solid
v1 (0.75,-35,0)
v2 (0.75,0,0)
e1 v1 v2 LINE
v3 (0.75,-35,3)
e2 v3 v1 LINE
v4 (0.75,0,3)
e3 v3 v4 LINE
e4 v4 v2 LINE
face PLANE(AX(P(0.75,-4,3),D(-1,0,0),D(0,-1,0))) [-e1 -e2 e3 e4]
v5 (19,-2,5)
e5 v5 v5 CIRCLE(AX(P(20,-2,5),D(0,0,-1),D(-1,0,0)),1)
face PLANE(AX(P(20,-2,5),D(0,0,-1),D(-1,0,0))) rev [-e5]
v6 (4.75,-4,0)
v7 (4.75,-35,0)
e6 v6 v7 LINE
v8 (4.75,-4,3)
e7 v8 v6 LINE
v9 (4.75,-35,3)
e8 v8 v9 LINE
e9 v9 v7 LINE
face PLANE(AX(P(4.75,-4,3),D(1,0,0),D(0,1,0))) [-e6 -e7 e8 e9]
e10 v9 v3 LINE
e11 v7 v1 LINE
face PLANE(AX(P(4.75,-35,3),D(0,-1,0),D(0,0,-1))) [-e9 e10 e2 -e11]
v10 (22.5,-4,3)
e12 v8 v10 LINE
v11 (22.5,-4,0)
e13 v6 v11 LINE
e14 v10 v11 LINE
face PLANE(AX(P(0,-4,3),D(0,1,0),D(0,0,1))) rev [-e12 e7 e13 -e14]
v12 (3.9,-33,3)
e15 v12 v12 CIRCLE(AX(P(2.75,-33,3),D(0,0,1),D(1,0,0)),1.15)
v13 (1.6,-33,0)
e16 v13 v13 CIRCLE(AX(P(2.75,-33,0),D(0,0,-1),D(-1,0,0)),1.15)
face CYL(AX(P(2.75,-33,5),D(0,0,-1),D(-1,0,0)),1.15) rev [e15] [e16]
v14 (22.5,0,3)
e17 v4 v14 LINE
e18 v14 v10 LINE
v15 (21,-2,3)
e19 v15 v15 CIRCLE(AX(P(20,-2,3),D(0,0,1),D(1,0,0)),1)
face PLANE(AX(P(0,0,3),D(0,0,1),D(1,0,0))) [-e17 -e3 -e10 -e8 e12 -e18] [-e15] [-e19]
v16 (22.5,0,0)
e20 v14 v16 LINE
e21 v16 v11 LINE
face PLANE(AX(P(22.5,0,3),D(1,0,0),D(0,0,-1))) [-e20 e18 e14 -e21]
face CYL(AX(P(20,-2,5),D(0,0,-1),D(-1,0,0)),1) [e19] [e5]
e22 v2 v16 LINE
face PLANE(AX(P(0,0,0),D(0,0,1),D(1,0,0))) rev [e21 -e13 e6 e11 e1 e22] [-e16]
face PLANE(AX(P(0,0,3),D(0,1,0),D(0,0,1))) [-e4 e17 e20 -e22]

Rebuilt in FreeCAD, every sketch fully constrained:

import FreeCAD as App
import Part
import Sketcher

V = App.Vector
Q = App.Units.Quantity

doc = App.newDocument("Part")
body = doc.addObject("PartDesign::Body", "Body")

sketch1 = doc.addObject("Sketcher::SketchObject", "Sketch")
body.addObject(sketch1)
sketch1.AttachmentSupport = (doc.XY_Plane, [""])
sketch1.MapMode = "FlatFace"
sketch1.addGeometry([
    Part.LineSegment(V(0, 0, 0), V(0, -4, 0)),
    Part.LineSegment(V(0, -4, 0), V(22.5, -4, 0)),
    Part.LineSegment(V(22.5, -4, 0), V(22.5, 0, 0)),
    Part.LineSegment(V(22.5, 0, 0), V(0, 0, 0)),
], False)
sketch1.addConstraint([
    Sketcher.Constraint("Coincident", 0, 2, 1, 1),
    Sketcher.Constraint("Coincident", 1, 2, 2, 1),
    Sketcher.Constraint("Coincident", 2, 2, 3, 1),
    Sketcher.Constraint("Coincident", 3, 2, 0, 1),
    Sketcher.Constraint("Vertical", 0),
    Sketcher.Constraint("Horizontal", 1),
    Sketcher.Constraint("Vertical", 2),
    Sketcher.Constraint("Horizontal", 3),
    Sketcher.Constraint("Coincident", 3, 2, -1, 1),
    Sketcher.Constraint("DistanceY", 0, 2, 0, 1, Q("4 mm")),
    Sketcher.Constraint("DistanceX", 1, 1, 1, 2, Q("22.5 mm")),
])
pad1 = doc.addObject("PartDesign::Pad", "Pad")
body.addObject(pad1)
pad1.Profile = sketch1
pad1.Length = 3

sketch2 = doc.addObject("Sketcher::SketchObject", "Sketch001")
body.addObject(sketch2)
sketch2.AttachmentSupport = (doc.XY_Plane, [""])
sketch2.MapMode = "FlatFace"
sketch2.addGeometry([
    Part.LineSegment(V(4.8, -4, 0), V(4.8, -35, 0)),
    Part.LineSegment(V(4.8, -35, 0), V(0.8, -35, 0)),
    Part.LineSegment(V(0.8, -35, 0), V(0.8, -4, 0)),
    Part.LineSegment(V(0.8, -4, 0), V(4.8, -4, 0)),
    Part.Circle(V(2.8, -33, 0), V(0, 0, 1), 1.1),
], False)
sketch2.addConstraint([
    Sketcher.Constraint("Coincident", 0, 2, 1, 1),
    Sketcher.Constraint("Coincident", 1, 2, 2, 1),
    Sketcher.Constraint("Coincident", 2, 2, 3, 1),
    Sketcher.Constraint("Coincident", 3, 2, 0, 1),
    Sketcher.Constraint("Vertical", 0),
    Sketcher.Constraint("Horizontal", 1),
    Sketcher.Constraint("Vertical", 2),
    Sketcher.Constraint("Horizontal", 3),
    Sketcher.Constraint("Diameter", 4, Q("2.1 mm")),
    Sketcher.Constraint("DistanceX", 1, 2, 1, 1, Q("4 mm")),
    Sketcher.Constraint("DistanceY", 0, 2, 0, 1, Q("31 mm")),
    Sketcher.Constraint("DistanceY", 4, 3, -1, 1, Q("33 mm")),
    Sketcher.Constraint("DistanceY", 0, 2, -1, 1, Q("35 mm")),
    Sketcher.Constraint("DistanceX", 4, 3, 0, 2, Q("2 mm")),
    Sketcher.Constraint("DistanceX", -1, 1, 4, 3, Q("2.75 mm")),
])
pad2 = doc.addObject("PartDesign::Pad", "Pad001")
body.addObject(pad2)
pad2.Profile = sketch2
pad2.Length = 3

sketch3 = doc.addObject("Sketcher::SketchObject", "Sketch002")
body.addObject(sketch3)
sketch3.AttachmentSupport = (doc.XY_Plane, [""])
sketch3.MapMode = "FlatFace"
sketch3.AttachmentOffset = App.Placement(V(0, 0, 3), App.Rotation())
sketch3.addGeometry([
    Part.LineSegment(V(-0.4, 0.6, 0), V(-0.4, -4, 0)),
    Part.LineSegment(V(-0.4, -4, 0), V(0.8, -4, 0)),
    Part.LineSegment(V(0.8, -4, 0), V(0.8, 0.6, 0)),
    Part.LineSegment(V(0.8, 0.6, 0), V(-0.4, 0.6, 0)),
], False)
sketch3.addConstraint([
    Sketcher.Constraint("Coincident", 0, 2, 1, 1),
    Sketcher.Constraint("Coincident", 1, 2, 2, 1),
    Sketcher.Constraint("Coincident", 2, 2, 3, 1),
    Sketcher.Constraint("Coincident", 3, 2, 0, 1),
    Sketcher.Constraint("Vertical", 0),
    Sketcher.Constraint("Horizontal", 1),
    Sketcher.Constraint("Vertical", 2),
    Sketcher.Constraint("Horizontal", 3),
    Sketcher.Constraint("DistanceY", 0, 2, -1, 1, Q("4 mm")),
    Sketcher.Constraint("DistanceX", -1, 1, 1, 2, Q("0.75 mm")),
    Sketcher.Constraint("DistanceX", 1, 1, 1, 2, Q("1.164205 mm")),
    Sketcher.Constraint("DistanceY", 0, 2, 0, 1, Q("4.577506 mm")),
])
pocket1 = doc.addObject("PartDesign::Pocket", "Pocket")
body.addObject(pocket1)
pocket1.Profile = sketch3
pocket1.Type = "ThroughAll"

sketch4 = doc.addObject("Sketcher::SketchObject", "Sketch003")
body.addObject(sketch4)
sketch4.AttachmentSupport = (doc.XY_Plane, [""])
sketch4.MapMode = "FlatFace"
sketch4.addGeometry(Part.Circle(V(20, -2, 0), V(0, 0, 1), 1), False)
sketch4.addConstraint([
    Sketcher.Constraint("Diameter", 0, Q("2 mm")),
    Sketcher.Constraint("DistanceX", -1, 1, 0, 3, Q("20 mm")),
    Sketcher.Constraint("DistanceY", 0, 3, -1, 1, Q("2 mm")),
])
pad3 = doc.addObject("PartDesign::Pad", "Pad002")
body.addObject(pad3)
pad3.Profile = sketch4
pad3.Length = 5

sketch5 = doc.addObject("Sketcher::SketchObject", "Sketch004")
body.addObject(sketch5)
sketch5.AttachmentSupport = (doc.XY_Plane, [""])
sketch5.MapMode = "FlatFace"
sketch5.addGeometry(Part.Circle(V(2.8, -33, 0), V(0, 0, 1), 1.1), False)
sketch5.addConstraint([
    Sketcher.Constraint("Diameter", 0, Q("2.3 mm")),
    Sketcher.Constraint("DistanceY", 0, 3, -1, 1, Q("33 mm")),
    Sketcher.Constraint("DistanceX", -1, 1, 0, 3, Q("2.75 mm")),
])
pocket2 = doc.addObject("PartDesign::Pocket", "Pocket001")
body.addObject(pocket2)
pocket2.Profile = sketch5
pocket2.Type = "ThroughAll"
pocket2.Reversed = True

doc.recompute()
